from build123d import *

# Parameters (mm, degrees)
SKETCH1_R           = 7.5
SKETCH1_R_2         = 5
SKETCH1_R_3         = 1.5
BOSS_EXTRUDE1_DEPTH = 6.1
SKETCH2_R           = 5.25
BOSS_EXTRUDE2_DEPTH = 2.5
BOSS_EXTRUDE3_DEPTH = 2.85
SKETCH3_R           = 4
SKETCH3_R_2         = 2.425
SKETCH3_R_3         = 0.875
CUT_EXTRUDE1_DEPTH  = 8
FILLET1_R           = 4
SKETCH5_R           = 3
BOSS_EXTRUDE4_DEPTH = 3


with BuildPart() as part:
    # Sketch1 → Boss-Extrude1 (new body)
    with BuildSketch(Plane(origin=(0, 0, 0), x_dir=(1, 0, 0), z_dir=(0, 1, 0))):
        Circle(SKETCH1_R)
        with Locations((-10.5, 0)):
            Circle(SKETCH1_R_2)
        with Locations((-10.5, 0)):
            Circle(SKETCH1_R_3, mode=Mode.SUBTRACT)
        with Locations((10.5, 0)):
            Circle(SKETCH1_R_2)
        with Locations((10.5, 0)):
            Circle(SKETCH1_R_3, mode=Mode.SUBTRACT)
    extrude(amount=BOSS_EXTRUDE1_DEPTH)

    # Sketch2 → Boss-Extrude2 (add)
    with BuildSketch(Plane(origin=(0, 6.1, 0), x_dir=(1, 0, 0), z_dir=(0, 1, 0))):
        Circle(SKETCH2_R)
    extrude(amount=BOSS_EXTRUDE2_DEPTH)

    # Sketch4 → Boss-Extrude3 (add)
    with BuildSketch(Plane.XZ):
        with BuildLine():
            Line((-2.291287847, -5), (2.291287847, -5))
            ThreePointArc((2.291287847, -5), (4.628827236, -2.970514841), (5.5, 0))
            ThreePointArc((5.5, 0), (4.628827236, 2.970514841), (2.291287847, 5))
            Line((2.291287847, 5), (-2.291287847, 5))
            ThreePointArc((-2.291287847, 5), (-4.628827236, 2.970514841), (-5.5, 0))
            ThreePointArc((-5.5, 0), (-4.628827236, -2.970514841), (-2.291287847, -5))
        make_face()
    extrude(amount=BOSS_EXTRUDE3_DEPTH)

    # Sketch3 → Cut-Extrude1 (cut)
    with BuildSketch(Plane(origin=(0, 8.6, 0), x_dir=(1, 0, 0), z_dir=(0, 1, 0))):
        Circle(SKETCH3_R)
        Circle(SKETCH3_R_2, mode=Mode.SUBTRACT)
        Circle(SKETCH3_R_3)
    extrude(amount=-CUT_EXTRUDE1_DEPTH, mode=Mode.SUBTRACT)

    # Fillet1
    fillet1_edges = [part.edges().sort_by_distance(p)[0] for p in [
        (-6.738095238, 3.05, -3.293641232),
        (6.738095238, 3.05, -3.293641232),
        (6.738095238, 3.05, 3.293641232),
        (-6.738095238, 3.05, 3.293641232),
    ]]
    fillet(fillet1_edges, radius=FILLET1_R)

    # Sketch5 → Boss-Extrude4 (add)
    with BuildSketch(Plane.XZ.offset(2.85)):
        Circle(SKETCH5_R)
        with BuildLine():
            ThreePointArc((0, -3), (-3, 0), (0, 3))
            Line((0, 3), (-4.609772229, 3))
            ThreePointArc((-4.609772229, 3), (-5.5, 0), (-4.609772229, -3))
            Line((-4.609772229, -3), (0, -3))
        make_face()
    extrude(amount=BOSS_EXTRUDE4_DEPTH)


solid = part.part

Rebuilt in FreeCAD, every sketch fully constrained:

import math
import FreeCAD as App
import Part
import Sketcher
from FreeCAD import Vector


def edges_at(feature, points):
    """Names of the edges that pass closest to the given points."""
    edges = feature.Shape.Edges
    near = lambda p: min(range(len(edges)), key=lambda i: edges[i].distToShape(Part.Vertex(*p))[0])
    return sorted({f"Edge{near(p) + 1}" for p in points})

doc = App.newDocument("Part")
body = doc.addObject("PartDesign::Body", "Body")

sketch1 = doc.addObject("Sketcher::SketchObject", "Sketch")
body.addObject(sketch1)
sketch1.AttachmentSupport = (doc.XZ_Plane, [""])
sketch1.MapMode = "FlatFace"
sketch1.addGeometry([
    Part.ArcOfCircle(Part.Circle(Vector(-10.5, 0, 0), Vector(0, 0, 1), 5), math.radians(41.202954), math.radians(318.797046)),
    Part.ArcOfCircle(Part.Circle(Vector(0, 0, 0), Vector(0, 0, 1), 7.5), math.radians(26.049798), math.radians(153.950202)),
    Part.ArcOfCircle(Part.Circle(Vector(10.5, 0, 0), Vector(0, 0, 1), 5), math.radians(-138.797046), math.radians(138.797046)),
    Part.ArcOfCircle(Part.Circle(Vector(0, 0, 0), Vector(0, 0, 1), 7.5), math.radians(-153.950202), math.radians(-26.049798)),
    Part.Circle(Vector(-10.5, 0, 0), Vector(0, 0, 1), 1.5),
    Part.Circle(Vector(10.5, 0, 0), Vector(0, 0, 1), 1.5),
], False)
sketch1.addConstraint([
    Sketcher.Constraint("Coincident", 0, 1, 1, 2),
    Sketcher.Constraint("Coincident", 1, 1, 2, 2),
    Sketcher.Constraint("Coincident", 2, 1, 3, 2),
    Sketcher.Constraint("Coincident", 3, 1, 0, 2),
    Sketcher.Constraint("Coincident", 1, 3, -1, 1),
    Sketcher.Constraint("Coincident", 3, 3, -1, 1),
    Sketcher.Constraint("Coincident", 4, 3, 0, 3),
    Sketcher.Constraint("Coincident", 5, 3, 2, 3),
    Sketcher.Constraint("Equal", 0, 2),
    Sketcher.Constraint("Equal", 1, 3),
    Sketcher.Constraint("Equal", 4, 5),
    Sketcher.Constraint("Symmetric", 0, 3, 2, 3, -1, 1),
    Sketcher.Constraint("PointOnObject", 0, 3, -1),
    Sketcher.Constraint("Diameter", 4, 3.0),
    Sketcher.Constraint("Radius", 0, 5.0),
    Sketcher.Constraint("Radius", 1, 7.5),
    Sketcher.Constraint("DistanceX", 0, 3, 2, 3, 21.0),
])
pad1 = doc.addObject("PartDesign::Pad", "Pad")
body.addObject(pad1)
pad1.Profile = sketch1
pad1.Length = 6.1
pad1.Reversed = True

sketch2 = doc.addObject("Sketcher::SketchObject", "Sketch001")
body.addObject(sketch2)
sketch2.AttachmentSupport = (doc.XZ_Plane, [""])
sketch2.MapMode = "FlatFace"
sketch2.AttachmentOffset = App.Placement(Vector(0, 0, -6.1), App.Rotation())
sketch2.addGeometry(Part.Circle(Vector(0, 0, 0), Vector(0, 0, 1), 5.25), False)
sketch2.addConstraint([
    Sketcher.Constraint("Coincident", 0, 3, -1, 1),
    Sketcher.Constraint("Diameter", 0, 10.5),
])
pad2 = doc.addObject("PartDesign::Pad", "Pad001")
body.addObject(pad2)
pad2.Profile = sketch2
pad2.Length = 2.5
pad2.Reversed = True

sketch3 = doc.addObject("Sketcher::SketchObject", "Sketch002")
body.addObject(sketch3)
sketch3.AttachmentSupport = (doc.XZ_Plane, [""])
sketch3.MapMode = "FlatFace"
sketch3.addGeometry([
    Part.LineSegment(Vector(-2.291288, -5, 0), Vector(2.291288, -5, 0)),
    Part.ArcOfCircle(Part.Circle(Vector(0, 0, 0), Vector(0, 0, 1), 5.5), math.radians(-65.380023), math.radians(0)),
    Part.ArcOfCircle(Part.Circle(Vector(0, 0, 0), Vector(0, 0, 1), 5.5), math.radians(0), math.radians(65.380023)),
    Part.LineSegment(Vector(2.291288, 5, 0), Vector(-2.291288, 5, 0)),
    Part.ArcOfCircle(Part.Circle(Vector(0, 0, 0), Vector(0, 0, 1), 5.5), math.radians(114.619977), math.radians(180)),
    Part.ArcOfCircle(Part.Circle(Vector(0, 0, 0), Vector(0, 0, 1), 5.5), math.radians(180), math.radians(245.380023)),
], False)
sketch3.addConstraint([
    Sketcher.Constraint("Coincident", 0, 2, 1, 1),
    Sketcher.Constraint("Tangent", 1, 2, 2, 1),
    Sketcher.Constraint("Coincident", 2, 2, 3, 1),
    Sketcher.Constraint("Coincident", 3, 2, 4, 1),
    Sketcher.Constraint("Tangent", 4, 2, 5, 1),
    Sketcher.Constraint("Coincident", 5, 2, 0, 1),
    Sketcher.Constraint("Horizontal", 0),
    Sketcher.Constraint("Horizontal", 3),
    Sketcher.Constraint("Coincident", 1, 3, -1, 1),
    Sketcher.Constraint("Coincident", 4, 3, -1, 1),
    Sketcher.Constraint("Equal", 1, 2),
    Sketcher.Constraint("Equal", 2, 4),
    Sketcher.Constraint("Equal", 4, 5),
    Sketcher.Constraint("PointOnObject", 1, 2, -1),
    Sketcher.Constraint("PointOnObject", 4, 2, -1),
    Sketcher.Constraint("Vertical", 0, 2, 2, 2),
    Sketcher.Constraint("Radius", 1, 5.5),
    Sketcher.Constraint("DistanceY", 0, 2, -1, 1, 5.0),
])
pad3 = doc.addObject("PartDesign::Pad", "Pad002")
body.addObject(pad3)
pad3.Profile = sketch3
pad3.Length = 2.85

sketch4 = doc.addObject("Sketcher::SketchObject", "Sketch003")
body.addObject(sketch4)
sketch4.AttachmentSupport = (doc.XZ_Plane, [""])
sketch4.MapMode = "FlatFace"
sketch4.AttachmentOffset = App.Placement(Vector(0, 0, -8.6), App.Rotation())
sketch4.addGeometry([
    Part.Circle(Vector(0, 0, 0), Vector(0, 0, 1), 4),
    Part.Circle(Vector(0, 0, 0), Vector(0, 0, 1), 2.425),
    Part.Circle(Vector(0, 0, 0), Vector(0, 0, 1), 0.875),
], False)
sketch4.addConstraint([
    Sketcher.Constraint("Coincident", 0, 3, -1, 1),
    Sketcher.Constraint("Coincident", 1, 3, -1, 1),
    Sketcher.Constraint("Coincident", 2, 3, -1, 1),
    Sketcher.Constraint("Diameter", 0, 8.0),
    Sketcher.Constraint("Diameter", 1, 4.85),
    Sketcher.Constraint("Diameter", 2, 1.75),
])
pocket1 = doc.addObject("PartDesign::Pocket", "Pocket")
body.addObject(pocket1)
pocket1.Profile = sketch4
pocket1.Length = 8
pocket1.Reversed = True
doc.recompute()

fillet = doc.addObject("PartDesign::Fillet", "Fillet")
body.addObject(fillet)
fillet.Base = (pocket1, edges_at(pocket1, [
    (-6.738, 3.05, -3.294),
    (6.738, 3.05, -3.294),
    (6.738, 3.05, 3.294),
    (-6.738, 3.05, 3.294),
]))
fillet.Radius = 4

sketch5 = doc.addObject("Sketcher::SketchObject", "Sketch004")
body.addObject(sketch5)
sketch5.AttachmentSupport = (doc.XZ_Plane, [""])
sketch5.MapMode = "FlatFace"
sketch5.AttachmentOffset = App.Placement(Vector(0, 0, 2.85), App.Rotation())
sketch5.addGeometry([
    Part.LineSegment(Vector(0, 3, 0), Vector(-4.609772, 3, 0)),
    Part.ArcOfCircle(Part.Circle(Vector(0, 0, 0), Vector(0, 0, 1), 5.5), math.radians(146.944269), math.radians(213.055731)),
    Part.LineSegment(Vector(-4.609772, -3, 0), Vector(0, -3, 0)),
    Part.ArcOfCircle(Part.Circle(Vector(0, 0, 0), Vector(0, 0, 1), 3), math.radians(-90), math.radians(90)),
], False)
sketch5.addConstraint([
    Sketcher.Constraint("Coincident", 0, 2, 1, 1),
    Sketcher.Constraint("Coincident", 1, 2, 2, 1),
    Sketcher.Constraint("Tangent", 2, 2, 3, 1),
    Sketcher.Constraint("Tangent", 3, 2, 0, 1),
    Sketcher.Constraint("Horizontal", 0),
    Sketcher.Constraint("Horizontal", 2),
    Sketcher.Constraint("Coincident", 1, 3, -1, 1),
    Sketcher.Constraint("Coincident", 3, 3, -1, 1),
    Sketcher.Constraint("Radius", 3, 3.0),
    Sketcher.Constraint("Radius", 1, 5.5),
])
pad4 = doc.addObject("PartDesign::Pad", "Pad003")
body.addObject(pad4)
pad4.Profile = sketch5
pad4.Length = 3

doc.recompute()
